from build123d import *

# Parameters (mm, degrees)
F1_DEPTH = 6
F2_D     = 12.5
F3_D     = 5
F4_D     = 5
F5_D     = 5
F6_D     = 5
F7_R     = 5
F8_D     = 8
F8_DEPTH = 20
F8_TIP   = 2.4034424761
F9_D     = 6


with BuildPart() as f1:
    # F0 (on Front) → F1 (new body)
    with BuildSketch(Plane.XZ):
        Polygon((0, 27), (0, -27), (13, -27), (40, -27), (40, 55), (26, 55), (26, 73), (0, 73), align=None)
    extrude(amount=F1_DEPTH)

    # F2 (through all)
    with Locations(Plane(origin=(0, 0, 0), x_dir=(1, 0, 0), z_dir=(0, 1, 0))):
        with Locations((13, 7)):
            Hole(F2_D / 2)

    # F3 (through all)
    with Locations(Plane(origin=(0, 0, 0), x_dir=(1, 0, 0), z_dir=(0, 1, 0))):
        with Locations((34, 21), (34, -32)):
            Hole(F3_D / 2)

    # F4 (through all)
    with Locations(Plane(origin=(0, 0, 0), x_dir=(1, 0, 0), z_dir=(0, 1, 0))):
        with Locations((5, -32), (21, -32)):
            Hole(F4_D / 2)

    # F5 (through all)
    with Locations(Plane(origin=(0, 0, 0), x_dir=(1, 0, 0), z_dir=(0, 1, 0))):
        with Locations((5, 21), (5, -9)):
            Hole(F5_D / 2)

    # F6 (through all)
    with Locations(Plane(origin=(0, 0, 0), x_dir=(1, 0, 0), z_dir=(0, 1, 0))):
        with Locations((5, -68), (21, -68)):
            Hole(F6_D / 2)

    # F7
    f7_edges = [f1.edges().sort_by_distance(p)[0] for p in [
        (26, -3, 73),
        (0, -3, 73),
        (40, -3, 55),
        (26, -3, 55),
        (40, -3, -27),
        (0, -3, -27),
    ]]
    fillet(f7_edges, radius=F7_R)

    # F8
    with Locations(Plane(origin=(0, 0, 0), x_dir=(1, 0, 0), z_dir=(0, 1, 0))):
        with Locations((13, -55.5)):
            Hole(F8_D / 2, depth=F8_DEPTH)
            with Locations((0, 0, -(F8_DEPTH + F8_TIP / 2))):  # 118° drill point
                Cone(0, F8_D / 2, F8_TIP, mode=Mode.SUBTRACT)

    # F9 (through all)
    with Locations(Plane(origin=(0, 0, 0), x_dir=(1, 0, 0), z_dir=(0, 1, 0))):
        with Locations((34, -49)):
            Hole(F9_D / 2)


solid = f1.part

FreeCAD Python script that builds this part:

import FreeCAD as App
import Part
import Sketcher
from FreeCAD import Vector


def edges_at(feature, points):
    """Names of the edges that pass closest to the given points."""
    edges = feature.Shape.Edges
    near = lambda p: min(range(len(edges)), key=lambda i: edges[i].distToShape(Part.Vertex(*p))[0])
    return sorted({f"Edge{near(p) + 1}" for p in points})

doc = App.newDocument("Part")
params = doc.addObject("Spreadsheet::Sheet", "Params")
for row, (alias, value) in enumerate([
    ("sketch1_width", "40 mm"),
    ("sketch1_width2", "14 mm"),
    ("sketch1_height", "82 mm"),
    ("sketch1_height2", "18 mm"),
    ("pad1_length", "6 mm"),
    ("sketch2_diameter", "12.5 mm"),
    ("hole_diameter", "12.5 mm"),
    ("sketch3_diameter", "5 mm"),
    ("hole2_diameter", "5 mm"),
    ("sketch4_diameter", "5 mm"),
    ("hole3_diameter", "5 mm"),
    ("sketch5_diameter", "5 mm"),
    ("hole4_diameter", "5 mm"),
    ("sketch6_diameter", "5 mm"),
    ("hole5_diameter", "5 mm"),
    ("fillet_radius", "5 mm"),
    ("sketch7_diameter", "8 mm"),
    ("hole6_diameter", "8 mm"),
    ("hole6_depth", "20 mm"),
    ("sketch8_diameter", "6 mm"),
    ("hole7_diameter", "6 mm"),
], start=1):
    params.set(f"A{row}", alias)
    params.set(f"B{row}", "=" + value)
    params.setAlias(f"B{row}", alias)

body = doc.addObject("PartDesign::Body", "Body")

# Sketch on XZ plane
sketch1 = body.newObject("Sketcher::SketchObject", "Sketch")
sketch1.AttachmentSupport = (doc.getObject("XZ_Plane"), [""])
sketch1.MapMode = "FlatFace"
sketch1.addGeometry(Part.LineSegment(Vector(0, -27, 0), Vector(40, -27, 0)), False)
sketch1.addGeometry(Part.LineSegment(Vector(40, -27, 0), Vector(40, 55, 0)), False)
sketch1.addGeometry(Part.LineSegment(Vector(40, 55, 0), Vector(26, 55, 0)), False)
sketch1.addGeometry(Part.LineSegment(Vector(26, 55, 0), Vector(26, 73, 0)), False)
sketch1.addGeometry(Part.LineSegment(Vector(26, 73, 0), Vector(0, 73, 0)), False)
sketch1.addGeometry(Part.LineSegment(Vector(0, 73, 0), Vector(0, -27, 0)), False)
sketch1.addConstraint(Sketcher.Constraint("Coincident", 0, 2, 1, 1))
sketch1.addConstraint(Sketcher.Constraint("Coincident", 1, 2, 2, 1))
sketch1.addConstraint(Sketcher.Constraint("Coincident", 2, 2, 3, 1))
sketch1.addConstraint(Sketcher.Constraint("Coincident", 3, 2, 4, 1))
sketch1.addConstraint(Sketcher.Constraint("Coincident", 4, 2, 5, 1))
sketch1.addConstraint(Sketcher.Constraint("Coincident", 5, 2, 0, 1))
sketch1.addConstraint(Sketcher.Constraint("Horizontal", 0))
sketch1.addConstraint(Sketcher.Constraint("Vertical", 1))
sketch1.addConstraint(Sketcher.Constraint("Horizontal", 2))
sketch1.addConstraint(Sketcher.Constraint("Vertical", 3))
sketch1.addConstraint(Sketcher.Constraint("Horizontal", 4))
sketch1.addConstraint(Sketcher.Constraint("Vertical", 5))
sketch1.addConstraint(Sketcher.Constraint("PointOnObject", 4, 2, -2))
sketch1.addConstraint(Sketcher.Constraint("DistanceX", 0, 1, 0, 2, 40.0))
sketch1.addConstraint(Sketcher.Constraint("DistanceX", 2, 2, 2, 1, 14.0))
sketch1.addConstraint(Sketcher.Constraint("DistanceY", 1, 1, 1, 2, 82.0))
sketch1.addConstraint(Sketcher.Constraint("DistanceY", 3, 1, 3, 2, 18.0))
sketch1.addConstraint(Sketcher.Constraint("DistanceY", 0, 2, -1, 1, 27.0))
sketch1.setExpression("Constraints[13]", "Params.sketch1_width")
sketch1.setExpression("Constraints[14]", "Params.sketch1_width2")
sketch1.setExpression("Constraints[15]", "Params.sketch1_height")
sketch1.setExpression("Constraints[16]", "Params.sketch1_height2")
pad1 = body.newObject("PartDesign::Pad", "Pad")
pad1.Profile = sketch1
pad1.setExpression("Length", "Params.pad1_length")

# Sketch on XZ plane
sketch2 = body.newObject("Sketcher::SketchObject", "Sketch001")
sketch2.AttachmentSupport = (doc.getObject("XZ_Plane"), [""])
sketch2.MapMode = "FlatFace"
sketch2.addGeometry(Part.Circle(Vector(13, -7, 0), Vector(0, 0, 1), 6.25), False)
sketch2.addConstraint(Sketcher.Constraint("Diameter", 0, 12.5))
sketch2.addConstraint(Sketcher.Constraint("DistanceX", -1, 1, 0, 3, 13.0))
sketch2.addConstraint(Sketcher.Constraint("DistanceY", 0, 3, -1, 1, 7.0))
sketch2.setExpression("Constraints[0]", "Params.sketch2_diameter")
doc.recompute()
hole = body.newObject("PartDesign::Hole", "Hole")
hole.Profile = sketch2
hole.ThreadType = "None"
hole.setExpression("Diameter", "Params.hole_diameter")
hole.DepthType = "ThroughAll"
hole.Reversed = True

# Sketch on XZ plane
sketch3 = body.newObject("Sketcher::SketchObject", "Sketch002")
sketch3.AttachmentSupport = (doc.getObject("XZ_Plane"), [""])
sketch3.MapMode = "FlatFace"
sketch3.addGeometry(Part.Circle(Vector(34, -21, 0), Vector(0, 0, 1), 2.5), False)
sketch3.addGeometry(Part.Circle(Vector(34, 32, 0), Vector(0, 0, 1), 2.5), False)
sketch3.addConstraint(Sketcher.Constraint("Equal", 0, 1))
sketch3.addConstraint(Sketcher.Constraint("Vertical", 0, 3, 1, 3))
sketch3.addConstraint(Sketcher.Constraint("Diameter", 0, 5.0))
sketch3.addConstraint(Sketcher.Constraint("DistanceX", -1, 1, 0, 3, 34.0))
sketch3.addConstraint(Sketcher.Constraint("DistanceY", 0, 3, -1, 1, 21.0))
sketch3.addConstraint(Sketcher.Constraint("DistanceY", -1, 1, 1, 3, 32.0))
sketch3.setExpression("Constraints[2]", "Params.sketch3_diameter")
doc.recompute()
hole2 = body.newObject("PartDesign::Hole", "Hole001")
hole2.Profile = sketch3
hole2.ThreadType = "None"
hole2.setExpression("Diameter", "Params.hole2_diameter")
hole2.DepthType = "ThroughAll"
hole2.Reversed = True

# Sketch on XZ plane
sketch4 = body.newObject("Sketcher::SketchObject", "Sketch003")
sketch4.AttachmentSupport = (doc.getObject("XZ_Plane"), [""])
sketch4.MapMode = "FlatFace"
sketch4.addGeometry(Part.Circle(Vector(5, 32, 0), Vector(0, 0, 1), 2.5), False)
sketch4.addGeometry(Part.Circle(Vector(21, 32, 0), Vector(0, 0, 1), 2.5), False)
sketch4.addConstraint(Sketcher.Constraint("Equal", 0, 1))
sketch4.addConstraint(Sketcher.Constraint("Horizontal", 0, 3, 1, 3))
sketch4.addConstraint(Sketcher.Constraint("Diameter", 0, 5.0))
sketch4.addConstraint(Sketcher.Constraint("DistanceX", -1, 1, 0, 3, 5.0))
sketch4.addConstraint(Sketcher.Constraint("DistanceY", -1, 1, 0, 3, 32.0))
sketch4.addConstraint(Sketcher.Constraint("DistanceX", -1, 1, 1, 3, 21.0))
sketch4.setExpression("Constraints[2]", "Params.sketch4_diameter")
doc.recompute()
hole3 = body.newObject("PartDesign::Hole", "Hole002")
hole3.Profile = sketch4
hole3.ThreadType = "None"
hole3.setExpression("Diameter", "Params.hole3_diameter")
hole3.DepthType = "ThroughAll"
hole3.Reversed = True

# Sketch on XZ plane
sketch5 = body.newObject("Sketcher::SketchObject", "Sketch004")
sketch5.AttachmentSupport = (doc.getObject("XZ_Plane"), [""])
sketch5.MapMode = "FlatFace"
sketch5.addGeometry(Part.Circle(Vector(5, -21, 0), Vector(0, 0, 1), 2.5), False)
sketch5.addGeometry(Part.Circle(Vector(5, 9, 0), Vector(0, 0, 1), 2.5), False)
sketch5.addConstraint(Sketcher.Constraint("Equal", 0, 1))
sketch5.addConstraint(Sketcher.Constraint("Vertical", 0, 3, 1, 3))
sketch5.addConstraint(Sketcher.Constraint("Diameter", 0, 5.0))
sketch5.addConstraint(Sketcher.Constraint("DistanceX", -1, 1, 0, 3, 5.0))
sketch5.addConstraint(Sketcher.Constraint("DistanceY", 0, 3, -1, 1, 21.0))
sketch5.addConstraint(Sketcher.Constraint("DistanceY", -1, 1, 1, 3, 9.0))
sketch5.setExpression("Constraints[2]", "Params.sketch5_diameter")
doc.recompute()
hole4 = body.newObject("PartDesign::Hole", "Hole003")
hole4.Profile = sketch5
hole4.ThreadType = "None"
hole4.setExpression("Diameter", "Params.hole4_diameter")
hole4.DepthType = "ThroughAll"
hole4.Reversed = True

# Sketch on XZ plane
sketch6 = body.newObject("Sketcher::SketchObject", "Sketch005")
sketch6.AttachmentSupport = (doc.getObject("XZ_Plane"), [""])
sketch6.MapMode = "FlatFace"
sketch6.addGeometry(Part.Circle(Vector(5, 68, 0), Vector(0, 0, 1), 2.5), False)
sketch6.addGeometry(Part.Circle(Vector(21, 68, 0), Vector(0, 0, 1), 2.5), False)
sketch6.addConstraint(Sketcher.Constraint("Equal", 0, 1))
sketch6.addConstraint(Sketcher.Constraint("Horizontal", 0, 3, 1, 3))
sketch6.addConstraint(Sketcher.Constraint("Diameter", 0, 5.0))
sketch6.addConstraint(Sketcher.Constraint("DistanceX", -1, 1, 0, 3, 5.0))
sketch6.addConstraint(Sketcher.Constraint("DistanceY", -1, 1, 0, 3, 68.0))
sketch6.addConstraint(Sketcher.Constraint("DistanceX", -1, 1, 1, 3, 21.0))
sketch6.setExpression("Constraints[2]", "Params.sketch6_diameter")
doc.recompute()
hole5 = body.newObject("PartDesign::Hole", "Hole004")
hole5.Profile = sketch6
hole5.ThreadType = "None"
hole5.setExpression("Diameter", "Params.hole5_diameter")
hole5.DepthType = "ThroughAll"
hole5.Reversed = True
doc.recompute()

fillet = body.newObject("PartDesign::Fillet", "Fillet")
fillet.Base = (hole5, edges_at(hole5, [
    (26, -3, 73),
    (0, -3, 73),
    (40, -3, 55),
    (26, -3, 55),
    (40, -3, -27),
    (0, -3, -27),
]))
fillet.setExpression("Radius", "Params.fillet_radius")

# Sketch on XZ plane
sketch7 = body.newObject("Sketcher::SketchObject", "Sketch006")
sketch7.AttachmentSupport = (doc.getObject("XZ_Plane"), [""])
sketch7.MapMode = "FlatFace"
sketch7.addGeometry(Part.Circle(Vector(13, 55.5, 0), Vector(0, 0, 1), 4), False)
sketch7.addConstraint(Sketcher.Constraint("Diameter", 0, 8.0))
sketch7.addConstraint(Sketcher.Constraint("DistanceX", -1, 1, 0, 3, 13.0))
sketch7.addConstraint(Sketcher.Constraint("DistanceY", -1, 1, 0, 3, 55.5))
sketch7.setExpression("Constraints[0]", "Params.sketch7_diameter")
doc.recompute()
hole6 = body.newObject("PartDesign::Hole", "Hole005")
hole6.Profile = sketch7
hole6.ThreadType = "None"
hole6.setExpression("Diameter", "Params.hole6_diameter")
hole6.DepthType = "Dimension"
hole6.setExpression("Depth", "Params.hole6_depth")
hole6.DrillPoint = "Angled"
hole6.DrillPointAngle = 118
hole6.Reversed = True

# Sketch on XZ plane
sketch8 = body.newObject("Sketcher::SketchObject", "Sketch007")
sketch8.AttachmentSupport = (doc.getObject("XZ_Plane"), [""])
sketch8.MapMode = "FlatFace"
sketch8.addGeometry(Part.Circle(Vector(34, 49, 0), Vector(0, 0, 1), 3), False)
sketch8.addConstraint(Sketcher.Constraint("Diameter", 0, 6.0))
sketch8.addConstraint(Sketcher.Constraint("DistanceX", -1, 1, 0, 3, 34.0))
sketch8.addConstraint(Sketcher.Constraint("DistanceY", -1, 1, 0, 3, 49.0))
sketch8.setExpression("Constraints[0]", "Params.sketch8_diameter")
doc.recompute()
hole7 = body.newObject("PartDesign::Hole", "Hole006")
hole7.Profile = sketch8
hole7.ThreadType = "None"
hole7.setExpression("Diameter", "Params.hole7_diameter")
hole7.DepthType = "ThroughAll"
hole7.Reversed = True

doc.recompute()
